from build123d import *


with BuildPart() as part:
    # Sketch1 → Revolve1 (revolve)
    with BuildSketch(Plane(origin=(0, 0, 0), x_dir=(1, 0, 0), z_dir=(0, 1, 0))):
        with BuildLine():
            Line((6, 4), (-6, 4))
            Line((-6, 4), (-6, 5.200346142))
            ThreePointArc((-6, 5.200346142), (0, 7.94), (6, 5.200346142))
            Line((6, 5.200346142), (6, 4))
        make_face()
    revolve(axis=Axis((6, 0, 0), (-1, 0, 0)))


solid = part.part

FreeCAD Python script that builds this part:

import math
import FreeCAD as App
import Part
import Sketcher
from FreeCAD import Vector

doc = App.newDocument("Part")
params = doc.addObject("Spreadsheet::Sheet", "Params")
for row, (alias, value) in enumerate([
    ("sketch1_width", "12 mm"),
    ("sketch1_radius", "7.94 mm"),
    ("revolution_angle", "360 deg"),
], start=1):
    params.set(f"A{row}", alias)
    params.set(f"B{row}", "=" + value)
    params.setAlias(f"B{row}", alias)

body = doc.addObject("PartDesign::Body", "Body")

sketch1 = body.newObject("Sketcher::SketchObject", "Sketch")
sketch1.AttachmentSupport = (doc.getObject("XZ_Plane"), [""])
sketch1.MapMode = "FlatFace"
sketch1.addGeometry(Part.LineSegment(Vector(-6, -4, 0), Vector(6, -4, 0)), False)
sketch1.addGeometry(Part.LineSegment(Vector(6, -4, 0), Vector(6, -5.200346, 0)), False)
sketch1.addGeometry(Part.ArcOfCircle(Part.Circle(Vector(0, 0, 0), Vector(0, 0, 1), 7.94), math.radians(-139.083729), math.radians(-40.916271)), False)
sketch1.addGeometry(Part.LineSegment(Vector(-6, -5.200346, 0), Vector(-6, -4, 0)), False)
sketch1.addConstraint(Sketcher.Constraint("Coincident", 0, 2, 1, 1))
sketch1.addConstraint(Sketcher.Constraint("Coincident", 1, 2, 2, 2))
sketch1.addConstraint(Sketcher.Constraint("Coincident", 2, 1, 3, 1))
sketch1.addConstraint(Sketcher.Constraint("Coincident", 3, 2, 0, 1))
sketch1.addConstraint(Sketcher.Constraint("Horizontal", 0))
sketch1.addConstraint(Sketcher.Constraint("Vertical", 1))
sketch1.addConstraint(Sketcher.Constraint("Vertical", 3))
sketch1.addConstraint(Sketcher.Constraint("Coincident", 2, 3, -1, 1))
sketch1.addConstraint(Sketcher.Constraint("Horizontal", 1, 2, 2, 1))
sketch1.addConstraint(Sketcher.Constraint("DistanceX", 0, 1, 0, 2, 12.0))
sketch1.addConstraint(Sketcher.Constraint("Radius", 2, 7.94))
sketch1.addConstraint(Sketcher.Constraint("DistanceY", 0, 2, -1, 1, 4.0))
sketch1.setExpression("Constraints[9]", "Params.sketch1_width")
sketch1.setExpression("Constraints[10]", "Params.sketch1_radius")
revolution = body.newObject("PartDesign::Revolution", "Revolution")
revolution.Profile = sketch1
revolution.ReferenceAxis = (sketch1, ["H_Axis"])
revolution.setExpression("Angle", "Params.revolution_angle")

doc.recompute()
